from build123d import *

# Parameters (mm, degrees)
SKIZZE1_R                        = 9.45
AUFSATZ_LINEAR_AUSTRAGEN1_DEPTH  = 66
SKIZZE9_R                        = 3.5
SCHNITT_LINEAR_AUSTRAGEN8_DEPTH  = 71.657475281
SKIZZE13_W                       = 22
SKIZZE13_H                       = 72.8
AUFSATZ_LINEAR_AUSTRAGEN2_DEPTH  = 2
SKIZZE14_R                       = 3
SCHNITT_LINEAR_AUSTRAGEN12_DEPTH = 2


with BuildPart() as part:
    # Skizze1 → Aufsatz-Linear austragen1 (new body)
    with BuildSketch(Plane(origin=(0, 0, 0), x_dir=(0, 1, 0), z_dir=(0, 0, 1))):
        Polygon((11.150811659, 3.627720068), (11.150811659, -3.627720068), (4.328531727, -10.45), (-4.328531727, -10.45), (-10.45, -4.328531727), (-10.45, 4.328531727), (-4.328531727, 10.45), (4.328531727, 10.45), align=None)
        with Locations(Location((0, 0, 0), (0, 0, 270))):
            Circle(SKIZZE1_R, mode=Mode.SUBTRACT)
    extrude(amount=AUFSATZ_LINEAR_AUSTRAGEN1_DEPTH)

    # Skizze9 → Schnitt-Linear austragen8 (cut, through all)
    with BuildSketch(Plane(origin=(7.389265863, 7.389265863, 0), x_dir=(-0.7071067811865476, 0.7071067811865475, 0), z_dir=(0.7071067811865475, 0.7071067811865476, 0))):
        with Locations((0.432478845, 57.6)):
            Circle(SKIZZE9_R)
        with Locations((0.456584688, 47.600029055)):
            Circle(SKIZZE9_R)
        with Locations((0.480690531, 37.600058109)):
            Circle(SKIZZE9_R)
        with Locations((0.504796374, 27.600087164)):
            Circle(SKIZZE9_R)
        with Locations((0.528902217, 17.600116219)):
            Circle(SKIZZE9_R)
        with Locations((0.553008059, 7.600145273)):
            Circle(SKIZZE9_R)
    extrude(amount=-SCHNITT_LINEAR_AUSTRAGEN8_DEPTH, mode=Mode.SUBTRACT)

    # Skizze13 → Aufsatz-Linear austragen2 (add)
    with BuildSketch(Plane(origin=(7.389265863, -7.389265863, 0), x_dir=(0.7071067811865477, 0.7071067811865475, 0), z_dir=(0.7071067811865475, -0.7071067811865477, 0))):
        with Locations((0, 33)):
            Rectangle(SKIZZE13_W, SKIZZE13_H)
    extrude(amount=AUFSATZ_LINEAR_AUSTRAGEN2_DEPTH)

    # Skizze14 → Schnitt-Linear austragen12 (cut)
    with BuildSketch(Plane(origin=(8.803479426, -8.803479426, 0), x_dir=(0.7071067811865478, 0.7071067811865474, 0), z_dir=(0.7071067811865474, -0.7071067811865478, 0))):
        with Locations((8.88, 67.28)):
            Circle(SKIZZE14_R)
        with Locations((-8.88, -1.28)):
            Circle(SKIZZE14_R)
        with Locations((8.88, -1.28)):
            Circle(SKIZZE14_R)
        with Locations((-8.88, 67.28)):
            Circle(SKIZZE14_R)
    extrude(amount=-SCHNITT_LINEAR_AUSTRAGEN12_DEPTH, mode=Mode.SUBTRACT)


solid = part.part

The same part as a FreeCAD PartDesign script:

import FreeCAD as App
import Part
import Sketcher
from FreeCAD import Vector
Q = App.Units.Quantity


def add_polygon(sketch, points):
    """Adds a closed chain of lines whose ends are joined by coincident constraints."""
    first, n = sketch.GeometryCount, len(points)
    for a, b in zip(points, points[1:] + points[:1]):
        sketch.addGeometry(Part.LineSegment(App.Vector(*a, 0), App.Vector(*b, 0)), False)
    for i in range(n):
        sketch.addConstraint(Sketcher.Constraint("Coincident", first + i, 2, first + (i + 1) % n, 1))

doc = App.newDocument("Part")
params = doc.addObject("Spreadsheet::Sheet", "Params")
for row, (alias, value) in enumerate([
    ("sketch1_diameter", "18.9 mm"),
    ("pad1_length", "66 mm"),
    ("sketch2_diameter", "7 mm"),
    ("sketch3_width", "22 mm"),
    ("sketch3_height", "72.8 mm"),
    ("pad2_length", "2 mm"),
    ("sketch4_diameter", "6 mm"),
    ("pocket2_length", "2 mm"),
], start=1):
    params.set(f"A{row}", alias)
    params.set(f"B{row}", "=" + value)
    params.setAlias(f"B{row}", alias)

body = doc.addObject("PartDesign::Body", "Body")

sketch1 = body.newObject("Sketcher::SketchObject", "Sketch")
sketch1.AttachmentSupport = (doc.getObject("XY_Plane"), [""])
sketch1.MapMode = "FlatFace"
add_polygon(sketch1, [(3.62772, 11.150812), (-3.62772, 11.150812), (-10.45, 4.328532), (-10.45, -4.328532), (-4.328532, -10.45), (4.328532, -10.45), (10.45, -4.328532), (10.45, 4.328532)])
sketch1.addGeometry(Part.Circle(Vector(0, 0, 0), Vector(0, 0, 1), 9.45), False)
sketch1.addConstraint([
    Sketcher.Constraint("Horizontal", 0),
    Sketcher.Constraint("Vertical", 2),
    Sketcher.Constraint("Horizontal", 4),
    Sketcher.Constraint("Vertical", 6),
    Sketcher.Constraint("Coincident", 8, 3, -1, 1),
    Sketcher.Constraint("Symmetric", 1, 2, 5, 2, -1, 1),
    Sketcher.Constraint("Perpendicular", 1, 3),
    Sketcher.Constraint("Perpendicular", 3, 5),
    Sketcher.Constraint("Perpendicular", 5, 7),
    Sketcher.Constraint("Horizontal", 2, 2, 5, 2),
    Sketcher.Constraint("Horizontal", 1, 2, 6, 2),
    Sketcher.Constraint("Equal", 4, 2),
    Sketcher.Constraint("Equal", 3, 5),
    Sketcher.Constraint("Diameter", 8, Q("18.9 mm")),
    Sketcher.Constraint("DistanceX", 2, 2, 5, 2, Q("20.9 mm")),
    Sketcher.Constraint("DistanceX", 0, 2, 0, 1, Q("7.25544 mm")),
    Sketcher.Constraint("DistanceX", 4, 1, 4, 2, Q("8.657063 mm")),
])
sketch1.setExpression("Constraints[21]", "Params.sketch1_diameter")
pad1 = body.newObject("PartDesign::Pad", "Pad")
pad1.Profile = sketch1
pad1.setExpression("Length", "Params.pad1_length")

sketch2 = body.newObject("Sketcher::SketchObject", "Sketch001")
sketch2.Placement = App.Placement(Vector(7.389266, 7.389266, 0), App.Rotation(Vector(-0.707106781, 0.707106781, 0), Vector(0, 0, 0.999999999), Vector(0.707106781, 0.707106781, 0), "ZXY"))
sketch2.addGeometry([
    Part.Circle(Vector(0.432479, 57.6, 0), Vector(0, 0, 1), 3.5),
    Part.Circle(Vector(0.456585, 47.600029, 0), Vector(0, 0, 1), 3.5),
    Part.Circle(Vector(0.480691, 37.600058, 0), Vector(0, 0, 1), 3.5),
    Part.Circle(Vector(0.504796, 27.600087, 0), Vector(0, 0, 1), 3.5),
    Part.Circle(Vector(0.528902, 17.600116, 0), Vector(0, 0, 1), 3.5),
    Part.Circle(Vector(0.553008, 7.600145, 0), Vector(0, 0, 1), 3.5),
], False)
sketch2.addConstraint([
    Sketcher.Constraint("Equal", 0, 1),
    Sketcher.Constraint("Equal", 1, 2),
    Sketcher.Constraint("Equal", 2, 3),
    Sketcher.Constraint("Equal", 3, 4),
    Sketcher.Constraint("Equal", 4, 5),
    Sketcher.Constraint("Diameter", 0, Q("7 mm")),
    Sketcher.Constraint("DistanceY", -1, 1, 0, 3, Q("57.6 mm")),
    Sketcher.Constraint("DistanceX", -1, 1, 0, 3, Q("0.432479 mm")),
    Sketcher.Constraint("DistanceY", -1, 1, 1, 3, Q("47.600029 mm")),
    Sketcher.Constraint("DistanceX", -1, 1, 2, 3, Q("0.480691 mm")),
    Sketcher.Constraint("DistanceY", -1, 1, 2, 3, Q("37.600058 mm")),
    Sketcher.Constraint("DistanceX", -1, 1, 5, 3, Q("0.553008 mm")),
    Sketcher.Constraint("DistanceY", 3, 3, 2, 3, Q("9.999971 mm")),
    Sketcher.Constraint("DistanceX", 1, 3, 3, 3, Q("0.048212 mm")),
    Sketcher.Constraint("DistanceY", 4, 3, 3, 3, Q("9.999971 mm")),
    Sketcher.Constraint("DistanceX", 2, 3, 4, 3, Q("0.048212 mm")),
    Sketcher.Constraint("DistanceY", 5, 3, 4, 3, Q("9.999971 mm")),
    Sketcher.Constraint("DistanceX", 3, 3, 5, 3, Q("0.048212 mm")),
])
sketch2.setExpression("Constraints[5]", "Params.sketch2_diameter")
pocket1 = body.newObject("PartDesign::Pocket", "Pocket")
pocket1.Profile = sketch2
pocket1.Type = "ThroughAll"

sketch3 = body.newObject("Sketcher::SketchObject", "Sketch002")
sketch3.Placement = App.Placement(Vector(7.389266, -7.389266, 0), App.Rotation(Vector(0.707106781, 0.707106781, 0), Vector(0, 0, 0.999999999), Vector(0.707106781, -0.707106781, 0), "ZXY"))
add_polygon(sketch3, [(-11, 69.4), (-11, -3.4), (11, -3.4), (11, 69.4)])
sketch3.addConstraint([
    Sketcher.Constraint("Vertical", 0),
    Sketcher.Constraint("Horizontal", 1),
    Sketcher.Constraint("Vertical", 2),
    Sketcher.Constraint("Horizontal", 3),
    Sketcher.Constraint("DistanceX", 1, 1, 1, 2, Q("22 mm")),
    Sketcher.Constraint("DistanceY", 0, 2, 0, 1, Q("72.8 mm")),
    Sketcher.Constraint("DistanceX", 0, 2, -1, 1, Q("11 mm")),
    Sketcher.Constraint("DistanceY", 0, 2, -1, 1, Q("3.4 mm")),
])
sketch3.setExpression("Constraints[8]", "Params.sketch3_width")
sketch3.setExpression("Constraints[9]", "Params.sketch3_height")
pad2 = body.newObject("PartDesign::Pad", "Pad001")
pad2.Profile = sketch3
pad2.setExpression("Length", "Params.pad2_length")

sketch4 = body.newObject("Sketcher::SketchObject", "Sketch003")
sketch4.Placement = App.Placement(Vector(8.803479, -8.803479, 0), App.Rotation(Vector(0.707106781, 0.707106781, 0), Vector(0, 0, 0.999999999), Vector(0.707106781, -0.707106781, 0), "ZXY"))
sketch4.addGeometry([
    Part.Circle(Vector(8.88, 67.28, 0), Vector(0, 0, 1), 3),
    Part.Circle(Vector(-8.88, -1.28, 0), Vector(0, 0, 1), 3),
    Part.Circle(Vector(8.88, -1.28, 0), Vector(0, 0, 1), 3),
    Part.Circle(Vector(-8.88, 67.28, 0), Vector(0, 0, 1), 3),
], False)
sketch4.addConstraint([
    Sketcher.Constraint("Equal", 0, 1),
    Sketcher.Constraint("Equal", 1, 2),
    Sketcher.Constraint("Equal", 2, 3),
    Sketcher.Constraint("Symmetric", 1, 3, 2, 3, -2),
    Sketcher.Constraint("Symmetric", 0, 3, 3, 3, -2),
    Sketcher.Constraint("Vertical", 0, 3, 2, 3),
    Sketcher.Constraint("Diameter", 0, Q("6 mm")),
    Sketcher.Constraint("DistanceX", -1, 1, 0, 3, Q("8.88 mm")),
    Sketcher.Constraint("DistanceY", -1, 1, 0, 3, Q("67.28 mm")),
    Sketcher.Constraint("DistanceY", 1, 3, -1, 1, Q("1.28 mm")),
])
sketch4.setExpression("Constraints[6]", "Params.sketch4_diameter")
pocket2 = body.newObject("PartDesign::Pocket", "Pocket001")
pocket2.Profile = sketch4
pocket2.setExpression("Length", "Params.pocket2_length")

doc.recompute()
